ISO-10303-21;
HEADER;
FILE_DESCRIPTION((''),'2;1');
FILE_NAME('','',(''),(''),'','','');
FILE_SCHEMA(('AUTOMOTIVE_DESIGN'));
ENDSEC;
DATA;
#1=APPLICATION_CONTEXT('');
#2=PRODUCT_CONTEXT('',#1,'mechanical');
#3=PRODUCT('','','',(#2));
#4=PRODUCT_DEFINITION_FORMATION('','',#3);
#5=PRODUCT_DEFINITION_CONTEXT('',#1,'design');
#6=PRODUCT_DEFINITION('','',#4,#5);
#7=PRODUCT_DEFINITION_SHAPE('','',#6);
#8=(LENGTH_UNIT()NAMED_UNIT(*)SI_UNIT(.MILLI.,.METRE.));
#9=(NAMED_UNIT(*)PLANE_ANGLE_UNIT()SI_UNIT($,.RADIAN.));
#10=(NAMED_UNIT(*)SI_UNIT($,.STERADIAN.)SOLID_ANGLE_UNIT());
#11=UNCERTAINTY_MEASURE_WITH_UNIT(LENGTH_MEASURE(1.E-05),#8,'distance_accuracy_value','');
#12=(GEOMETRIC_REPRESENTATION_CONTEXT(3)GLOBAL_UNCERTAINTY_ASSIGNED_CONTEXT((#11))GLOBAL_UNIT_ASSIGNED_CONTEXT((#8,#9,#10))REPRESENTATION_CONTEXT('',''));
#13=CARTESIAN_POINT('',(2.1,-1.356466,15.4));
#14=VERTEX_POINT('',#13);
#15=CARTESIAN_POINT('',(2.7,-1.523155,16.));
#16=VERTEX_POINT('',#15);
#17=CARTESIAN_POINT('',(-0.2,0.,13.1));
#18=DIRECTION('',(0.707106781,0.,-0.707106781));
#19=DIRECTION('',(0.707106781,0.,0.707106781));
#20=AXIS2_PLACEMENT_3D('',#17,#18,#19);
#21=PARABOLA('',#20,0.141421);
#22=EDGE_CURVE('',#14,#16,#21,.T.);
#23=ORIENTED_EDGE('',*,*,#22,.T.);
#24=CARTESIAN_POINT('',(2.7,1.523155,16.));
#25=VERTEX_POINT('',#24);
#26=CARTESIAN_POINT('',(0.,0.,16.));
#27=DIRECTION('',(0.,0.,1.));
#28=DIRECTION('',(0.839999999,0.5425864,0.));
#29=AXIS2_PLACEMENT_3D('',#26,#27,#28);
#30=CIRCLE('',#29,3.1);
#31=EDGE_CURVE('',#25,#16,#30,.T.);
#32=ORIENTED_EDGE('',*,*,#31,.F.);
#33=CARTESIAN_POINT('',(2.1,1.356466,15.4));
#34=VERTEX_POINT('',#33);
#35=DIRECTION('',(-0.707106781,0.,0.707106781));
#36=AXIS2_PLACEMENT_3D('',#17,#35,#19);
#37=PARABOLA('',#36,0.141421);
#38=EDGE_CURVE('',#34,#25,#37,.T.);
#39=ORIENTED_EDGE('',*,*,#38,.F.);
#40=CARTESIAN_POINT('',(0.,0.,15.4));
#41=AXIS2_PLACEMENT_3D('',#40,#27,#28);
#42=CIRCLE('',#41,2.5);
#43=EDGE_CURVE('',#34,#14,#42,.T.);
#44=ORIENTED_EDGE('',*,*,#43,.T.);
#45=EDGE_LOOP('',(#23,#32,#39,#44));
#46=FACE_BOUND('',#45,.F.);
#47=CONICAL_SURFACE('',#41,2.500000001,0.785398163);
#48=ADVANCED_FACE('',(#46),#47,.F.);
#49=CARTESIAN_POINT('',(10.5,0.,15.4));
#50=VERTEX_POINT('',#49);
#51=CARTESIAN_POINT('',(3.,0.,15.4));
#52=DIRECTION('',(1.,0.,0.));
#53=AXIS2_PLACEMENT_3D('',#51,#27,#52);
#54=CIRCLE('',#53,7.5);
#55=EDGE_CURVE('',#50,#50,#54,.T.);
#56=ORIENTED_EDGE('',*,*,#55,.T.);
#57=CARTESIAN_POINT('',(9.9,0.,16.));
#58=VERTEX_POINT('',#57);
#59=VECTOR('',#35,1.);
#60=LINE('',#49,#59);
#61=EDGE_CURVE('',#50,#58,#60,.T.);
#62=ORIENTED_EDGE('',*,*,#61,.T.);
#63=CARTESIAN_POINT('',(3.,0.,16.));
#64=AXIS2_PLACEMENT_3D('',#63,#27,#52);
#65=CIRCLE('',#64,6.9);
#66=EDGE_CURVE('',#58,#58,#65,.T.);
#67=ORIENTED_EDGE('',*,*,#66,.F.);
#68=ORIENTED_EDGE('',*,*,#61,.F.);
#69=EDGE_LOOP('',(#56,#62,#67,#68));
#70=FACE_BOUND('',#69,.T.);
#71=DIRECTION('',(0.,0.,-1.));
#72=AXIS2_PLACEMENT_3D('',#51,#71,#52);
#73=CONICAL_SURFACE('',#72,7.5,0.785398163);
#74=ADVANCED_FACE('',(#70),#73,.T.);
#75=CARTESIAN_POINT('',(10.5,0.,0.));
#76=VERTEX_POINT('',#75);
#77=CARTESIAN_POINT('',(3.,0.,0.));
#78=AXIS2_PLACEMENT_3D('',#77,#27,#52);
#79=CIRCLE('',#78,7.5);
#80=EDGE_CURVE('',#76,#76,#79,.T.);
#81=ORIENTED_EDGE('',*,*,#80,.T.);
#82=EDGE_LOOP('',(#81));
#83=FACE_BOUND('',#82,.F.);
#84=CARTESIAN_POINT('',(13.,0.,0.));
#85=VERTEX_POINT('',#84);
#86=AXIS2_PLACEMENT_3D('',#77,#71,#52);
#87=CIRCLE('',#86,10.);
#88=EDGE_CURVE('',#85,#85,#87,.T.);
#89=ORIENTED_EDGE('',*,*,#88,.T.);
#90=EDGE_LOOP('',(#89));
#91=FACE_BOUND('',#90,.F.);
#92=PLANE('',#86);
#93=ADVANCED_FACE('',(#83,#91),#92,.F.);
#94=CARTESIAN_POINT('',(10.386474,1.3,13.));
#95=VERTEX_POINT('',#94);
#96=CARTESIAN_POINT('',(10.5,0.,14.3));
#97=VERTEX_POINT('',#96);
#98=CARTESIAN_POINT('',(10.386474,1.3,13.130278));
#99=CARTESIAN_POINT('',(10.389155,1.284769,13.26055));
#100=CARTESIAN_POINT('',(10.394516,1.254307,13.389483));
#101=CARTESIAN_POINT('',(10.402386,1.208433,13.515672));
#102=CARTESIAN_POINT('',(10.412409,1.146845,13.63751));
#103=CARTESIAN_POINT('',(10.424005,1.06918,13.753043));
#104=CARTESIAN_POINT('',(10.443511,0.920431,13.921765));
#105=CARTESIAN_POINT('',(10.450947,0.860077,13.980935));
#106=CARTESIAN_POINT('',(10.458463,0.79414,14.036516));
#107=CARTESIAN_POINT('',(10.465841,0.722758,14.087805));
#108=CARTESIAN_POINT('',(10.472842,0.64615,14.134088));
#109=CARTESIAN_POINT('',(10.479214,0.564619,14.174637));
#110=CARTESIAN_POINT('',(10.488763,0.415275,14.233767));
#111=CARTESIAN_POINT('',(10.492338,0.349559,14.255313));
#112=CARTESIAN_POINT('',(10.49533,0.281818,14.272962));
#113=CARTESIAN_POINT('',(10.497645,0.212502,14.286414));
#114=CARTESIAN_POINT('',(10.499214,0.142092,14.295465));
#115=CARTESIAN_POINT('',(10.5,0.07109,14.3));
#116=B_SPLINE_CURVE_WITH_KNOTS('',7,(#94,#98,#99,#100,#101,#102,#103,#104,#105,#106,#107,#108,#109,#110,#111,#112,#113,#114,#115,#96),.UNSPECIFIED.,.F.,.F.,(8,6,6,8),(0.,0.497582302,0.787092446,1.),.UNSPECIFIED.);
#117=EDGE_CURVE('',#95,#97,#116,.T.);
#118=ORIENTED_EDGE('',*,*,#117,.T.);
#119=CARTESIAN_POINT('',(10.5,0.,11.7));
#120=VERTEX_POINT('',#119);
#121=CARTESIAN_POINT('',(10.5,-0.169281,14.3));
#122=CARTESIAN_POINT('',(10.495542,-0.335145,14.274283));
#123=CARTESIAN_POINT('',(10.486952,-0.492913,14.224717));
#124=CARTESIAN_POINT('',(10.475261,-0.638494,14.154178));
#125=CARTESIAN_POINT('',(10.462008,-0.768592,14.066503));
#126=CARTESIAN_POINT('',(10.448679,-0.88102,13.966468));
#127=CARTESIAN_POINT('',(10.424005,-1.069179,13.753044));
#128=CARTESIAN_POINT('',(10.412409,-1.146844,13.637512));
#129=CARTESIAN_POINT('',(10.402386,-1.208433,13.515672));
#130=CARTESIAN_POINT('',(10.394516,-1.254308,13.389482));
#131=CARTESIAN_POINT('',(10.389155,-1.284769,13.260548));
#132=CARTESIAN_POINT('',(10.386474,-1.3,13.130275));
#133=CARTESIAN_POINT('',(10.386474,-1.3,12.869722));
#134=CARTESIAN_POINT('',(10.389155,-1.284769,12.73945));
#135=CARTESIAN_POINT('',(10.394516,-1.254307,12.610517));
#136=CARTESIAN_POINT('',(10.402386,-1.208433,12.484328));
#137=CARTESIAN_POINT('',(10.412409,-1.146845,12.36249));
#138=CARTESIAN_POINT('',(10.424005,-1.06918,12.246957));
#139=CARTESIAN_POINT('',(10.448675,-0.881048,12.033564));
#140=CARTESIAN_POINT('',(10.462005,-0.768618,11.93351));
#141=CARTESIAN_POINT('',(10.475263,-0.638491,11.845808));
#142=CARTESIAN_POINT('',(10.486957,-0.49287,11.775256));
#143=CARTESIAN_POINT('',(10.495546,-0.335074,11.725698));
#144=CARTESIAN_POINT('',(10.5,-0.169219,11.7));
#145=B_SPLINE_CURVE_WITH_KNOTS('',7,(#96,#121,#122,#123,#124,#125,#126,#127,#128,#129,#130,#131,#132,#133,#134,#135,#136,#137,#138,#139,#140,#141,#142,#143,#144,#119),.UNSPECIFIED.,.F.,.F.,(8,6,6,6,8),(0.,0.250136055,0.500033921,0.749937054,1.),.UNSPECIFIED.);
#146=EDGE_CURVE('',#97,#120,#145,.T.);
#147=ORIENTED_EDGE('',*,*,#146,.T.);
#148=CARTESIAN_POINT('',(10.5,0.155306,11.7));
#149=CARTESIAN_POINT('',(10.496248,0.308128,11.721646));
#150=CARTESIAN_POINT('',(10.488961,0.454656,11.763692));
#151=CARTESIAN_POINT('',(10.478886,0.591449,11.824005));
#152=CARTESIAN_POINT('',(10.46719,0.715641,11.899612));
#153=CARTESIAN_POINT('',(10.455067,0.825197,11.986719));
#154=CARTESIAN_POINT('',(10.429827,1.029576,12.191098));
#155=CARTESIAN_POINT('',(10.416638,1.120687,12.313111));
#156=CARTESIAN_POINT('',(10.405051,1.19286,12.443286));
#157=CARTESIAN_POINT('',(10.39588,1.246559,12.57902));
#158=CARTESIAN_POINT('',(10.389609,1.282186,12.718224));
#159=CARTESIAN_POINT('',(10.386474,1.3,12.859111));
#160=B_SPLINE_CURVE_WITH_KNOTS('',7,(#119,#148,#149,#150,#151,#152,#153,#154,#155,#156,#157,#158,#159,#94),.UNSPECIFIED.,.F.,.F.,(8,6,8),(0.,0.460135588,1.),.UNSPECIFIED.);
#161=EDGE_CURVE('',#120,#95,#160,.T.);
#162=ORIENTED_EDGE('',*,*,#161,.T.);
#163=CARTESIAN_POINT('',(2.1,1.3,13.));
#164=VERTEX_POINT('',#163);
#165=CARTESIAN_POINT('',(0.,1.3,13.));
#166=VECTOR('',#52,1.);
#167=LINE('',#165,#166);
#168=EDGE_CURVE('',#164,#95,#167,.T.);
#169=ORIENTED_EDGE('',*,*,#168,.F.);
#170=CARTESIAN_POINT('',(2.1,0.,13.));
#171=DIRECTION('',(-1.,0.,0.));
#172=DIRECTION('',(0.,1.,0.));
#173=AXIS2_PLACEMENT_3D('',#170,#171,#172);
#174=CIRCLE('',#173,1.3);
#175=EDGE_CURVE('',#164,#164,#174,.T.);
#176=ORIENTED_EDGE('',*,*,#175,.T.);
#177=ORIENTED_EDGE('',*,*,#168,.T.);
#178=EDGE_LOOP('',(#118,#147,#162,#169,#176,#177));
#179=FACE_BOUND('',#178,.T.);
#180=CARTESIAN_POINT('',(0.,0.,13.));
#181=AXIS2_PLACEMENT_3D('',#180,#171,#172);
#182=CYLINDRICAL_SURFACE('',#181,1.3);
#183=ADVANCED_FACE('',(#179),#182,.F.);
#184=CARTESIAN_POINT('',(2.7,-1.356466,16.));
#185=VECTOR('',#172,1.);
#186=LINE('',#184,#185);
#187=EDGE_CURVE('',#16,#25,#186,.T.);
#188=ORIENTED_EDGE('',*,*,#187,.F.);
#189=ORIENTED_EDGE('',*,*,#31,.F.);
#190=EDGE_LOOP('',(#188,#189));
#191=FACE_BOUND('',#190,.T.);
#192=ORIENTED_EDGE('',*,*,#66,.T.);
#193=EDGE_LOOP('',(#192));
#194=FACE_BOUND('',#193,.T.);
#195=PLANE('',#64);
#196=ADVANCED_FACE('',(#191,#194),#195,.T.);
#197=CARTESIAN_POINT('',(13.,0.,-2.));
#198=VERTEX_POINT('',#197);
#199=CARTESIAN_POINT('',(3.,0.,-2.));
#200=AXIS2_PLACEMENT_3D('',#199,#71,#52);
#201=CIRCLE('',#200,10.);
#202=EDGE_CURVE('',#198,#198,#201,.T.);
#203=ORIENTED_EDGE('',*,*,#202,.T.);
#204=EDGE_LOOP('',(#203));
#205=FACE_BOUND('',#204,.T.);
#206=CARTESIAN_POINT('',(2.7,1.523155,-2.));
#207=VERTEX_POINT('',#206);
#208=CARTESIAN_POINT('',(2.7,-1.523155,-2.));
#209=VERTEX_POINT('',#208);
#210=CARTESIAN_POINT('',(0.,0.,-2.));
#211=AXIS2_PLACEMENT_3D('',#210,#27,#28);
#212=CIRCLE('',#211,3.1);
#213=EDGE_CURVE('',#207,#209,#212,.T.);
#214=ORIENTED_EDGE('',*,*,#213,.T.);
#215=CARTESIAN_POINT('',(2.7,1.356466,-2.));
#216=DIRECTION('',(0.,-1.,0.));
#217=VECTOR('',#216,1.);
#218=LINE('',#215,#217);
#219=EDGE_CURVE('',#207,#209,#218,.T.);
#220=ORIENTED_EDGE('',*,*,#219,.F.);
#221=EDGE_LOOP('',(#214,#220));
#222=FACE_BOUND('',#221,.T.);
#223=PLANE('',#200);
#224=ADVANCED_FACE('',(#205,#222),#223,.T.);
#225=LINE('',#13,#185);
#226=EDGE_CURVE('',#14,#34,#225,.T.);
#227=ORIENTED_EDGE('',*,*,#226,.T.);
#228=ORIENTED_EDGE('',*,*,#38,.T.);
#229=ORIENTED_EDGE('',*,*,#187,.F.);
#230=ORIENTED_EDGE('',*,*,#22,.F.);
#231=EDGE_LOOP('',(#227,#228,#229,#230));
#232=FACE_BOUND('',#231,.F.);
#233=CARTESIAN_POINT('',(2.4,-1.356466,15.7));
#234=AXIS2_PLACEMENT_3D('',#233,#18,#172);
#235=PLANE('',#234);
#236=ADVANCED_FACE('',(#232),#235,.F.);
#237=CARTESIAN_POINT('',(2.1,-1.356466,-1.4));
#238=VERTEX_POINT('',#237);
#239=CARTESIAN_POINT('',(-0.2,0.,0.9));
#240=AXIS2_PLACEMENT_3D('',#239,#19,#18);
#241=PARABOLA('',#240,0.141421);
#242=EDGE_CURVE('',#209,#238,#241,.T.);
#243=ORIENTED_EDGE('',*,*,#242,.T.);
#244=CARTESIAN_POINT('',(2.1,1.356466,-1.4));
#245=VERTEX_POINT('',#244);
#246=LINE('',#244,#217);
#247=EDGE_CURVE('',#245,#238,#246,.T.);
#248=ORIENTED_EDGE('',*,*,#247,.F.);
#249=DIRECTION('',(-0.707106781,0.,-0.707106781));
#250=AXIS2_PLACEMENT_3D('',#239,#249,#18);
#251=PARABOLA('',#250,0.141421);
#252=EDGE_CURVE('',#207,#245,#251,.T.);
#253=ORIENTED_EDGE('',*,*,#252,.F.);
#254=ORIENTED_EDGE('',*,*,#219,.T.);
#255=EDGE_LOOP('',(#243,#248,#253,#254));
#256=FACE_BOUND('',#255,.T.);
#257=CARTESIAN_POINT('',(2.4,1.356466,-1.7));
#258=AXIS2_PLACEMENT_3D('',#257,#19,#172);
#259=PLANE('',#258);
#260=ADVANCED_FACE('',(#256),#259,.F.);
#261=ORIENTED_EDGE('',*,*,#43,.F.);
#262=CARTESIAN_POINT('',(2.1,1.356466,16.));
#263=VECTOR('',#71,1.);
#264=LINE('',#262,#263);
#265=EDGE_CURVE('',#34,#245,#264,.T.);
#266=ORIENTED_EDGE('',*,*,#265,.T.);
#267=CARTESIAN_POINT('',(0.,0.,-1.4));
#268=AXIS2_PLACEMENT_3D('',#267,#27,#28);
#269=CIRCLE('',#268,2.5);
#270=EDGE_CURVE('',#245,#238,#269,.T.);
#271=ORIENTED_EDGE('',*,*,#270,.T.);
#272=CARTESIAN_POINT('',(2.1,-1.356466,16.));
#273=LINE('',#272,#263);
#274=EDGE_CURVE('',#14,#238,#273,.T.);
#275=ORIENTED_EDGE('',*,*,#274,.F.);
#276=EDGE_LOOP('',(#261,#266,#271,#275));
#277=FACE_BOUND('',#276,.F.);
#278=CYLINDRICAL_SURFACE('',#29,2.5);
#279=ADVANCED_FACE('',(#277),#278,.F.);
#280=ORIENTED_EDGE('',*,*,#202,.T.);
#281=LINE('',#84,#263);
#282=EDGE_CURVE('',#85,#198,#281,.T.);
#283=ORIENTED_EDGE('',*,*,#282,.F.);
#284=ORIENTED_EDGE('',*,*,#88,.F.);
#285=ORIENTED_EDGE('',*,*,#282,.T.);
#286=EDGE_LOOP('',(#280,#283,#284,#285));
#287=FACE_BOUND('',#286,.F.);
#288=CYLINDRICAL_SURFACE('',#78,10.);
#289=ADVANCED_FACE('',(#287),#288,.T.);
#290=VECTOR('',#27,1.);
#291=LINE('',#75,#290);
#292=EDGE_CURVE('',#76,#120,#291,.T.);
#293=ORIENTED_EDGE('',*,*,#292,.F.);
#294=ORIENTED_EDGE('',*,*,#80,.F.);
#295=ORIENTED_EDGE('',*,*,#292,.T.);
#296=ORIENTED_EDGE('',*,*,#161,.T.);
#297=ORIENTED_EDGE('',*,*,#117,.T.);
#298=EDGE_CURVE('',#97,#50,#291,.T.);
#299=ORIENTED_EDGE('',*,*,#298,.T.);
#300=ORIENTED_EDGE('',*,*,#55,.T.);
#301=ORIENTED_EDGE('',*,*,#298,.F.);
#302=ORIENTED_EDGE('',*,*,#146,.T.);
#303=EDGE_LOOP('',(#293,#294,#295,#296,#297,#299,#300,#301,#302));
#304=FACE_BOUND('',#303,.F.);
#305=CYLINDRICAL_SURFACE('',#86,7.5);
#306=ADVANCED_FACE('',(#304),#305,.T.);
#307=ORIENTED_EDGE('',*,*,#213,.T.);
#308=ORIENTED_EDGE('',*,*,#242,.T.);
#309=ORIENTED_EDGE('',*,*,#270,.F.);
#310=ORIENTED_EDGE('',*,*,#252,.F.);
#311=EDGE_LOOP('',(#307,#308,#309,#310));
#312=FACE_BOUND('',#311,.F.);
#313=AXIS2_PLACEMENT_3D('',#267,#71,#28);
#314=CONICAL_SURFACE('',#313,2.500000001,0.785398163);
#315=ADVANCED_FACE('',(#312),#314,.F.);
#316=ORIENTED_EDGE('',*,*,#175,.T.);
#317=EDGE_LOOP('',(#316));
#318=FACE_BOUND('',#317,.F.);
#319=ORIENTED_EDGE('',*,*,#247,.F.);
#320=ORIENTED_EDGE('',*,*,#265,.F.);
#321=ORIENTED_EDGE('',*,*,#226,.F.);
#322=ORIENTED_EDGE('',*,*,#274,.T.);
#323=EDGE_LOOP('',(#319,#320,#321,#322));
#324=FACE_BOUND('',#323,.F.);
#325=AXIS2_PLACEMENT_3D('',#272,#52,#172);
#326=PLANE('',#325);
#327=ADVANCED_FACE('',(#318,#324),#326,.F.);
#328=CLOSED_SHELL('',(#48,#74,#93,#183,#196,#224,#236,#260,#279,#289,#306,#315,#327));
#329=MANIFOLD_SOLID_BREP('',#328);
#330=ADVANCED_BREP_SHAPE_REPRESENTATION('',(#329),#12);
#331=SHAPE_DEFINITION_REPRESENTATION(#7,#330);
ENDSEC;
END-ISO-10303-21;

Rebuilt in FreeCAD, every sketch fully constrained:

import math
import FreeCAD as App
import Part
import Sketcher


def edges_at(feature, points):
    """Names of the edges that pass closest to the given points."""
    edges = feature.Shape.Edges
    near = lambda p: min(range(len(edges)), key=lambda i: edges[i].distToShape(Part.Vertex(*p))[0])
    return sorted({f"Edge{near(p) + 1}" for p in points})

doc = App.newDocument("Part")
body = doc.addObject("PartDesign::Body", "Body")

# Sketch on XY plane
sketch1 = body.newObject("Sketcher::SketchObject", "Sketch")
sketch1.AttachmentSupport = (doc.getObject("XY_Plane"), [""])
sketch1.MapMode = "FlatFace"
sketch1.addGeometry(Part.Circle(App.Vector(3, 0, 0), App.Vector(0, 0, 1), 8), False)
sketch1.addConstraint(Sketcher.Constraint("PointOnObject", 0, 3, -1))
sketch1.addConstraint(Sketcher.Constraint("Diameter", 0, 15.0))
sketch1.addConstraint(Sketcher.Constraint("DistanceX", -1, 1, 0, 3, 3.0))
pad1 = body.newObject("PartDesign::Pad", "Pad")
pad1.Profile = sketch1
pad1.Length = 16

# Sketch on XY plane
sketch2 = body.newObject("Sketcher::SketchObject", "Sketch001")
sketch2.AttachmentSupport = (doc.getObject("XY_Plane"), [""])
sketch2.MapMode = "FlatFace"
sketch2.addGeometry(Part.Circle(App.Vector(3, 0, 0), App.Vector(0, 0, 1), 10), False)
sketch2.addConstraint(Sketcher.Constraint("PointOnObject", 0, 3, -1))
sketch2.addConstraint(Sketcher.Constraint("Diameter", 0, 20.0))
sketch2.addConstraint(Sketcher.Constraint("DistanceX", -1, 1, 0, 3, 3.0))
pad2 = body.newObject("PartDesign::Pad", "Pad001")
pad2.Profile = sketch2
pad2.Length = 2
pad2.Reversed = True

# Sketch on YZ plane
sketch3 = body.newObject("Sketcher::SketchObject", "Sketch002")
sketch3.AttachmentSupport = (doc.getObject("YZ_Plane"), [""])
sketch3.MapMode = "FlatFace"
sketch3.addGeometry(Part.Circle(App.Vector(0, 13, 0), App.Vector(0, 0, 1), 1.3), False)
sketch3.addConstraint(Sketcher.Constraint("PointOnObject", 0, 3, -2))
sketch3.addConstraint(Sketcher.Constraint("Diameter", 0, 2.6))
sketch3.addConstraint(Sketcher.Constraint("DistanceY", -1, 1, 0, 3, 13.0))
pocket1 = body.newObject("PartDesign::Pocket", "Pocket")
pocket1.Profile = sketch3
pocket1.Type = "ThroughAll"
pocket1.Reversed = True

# Sketch on XY plane
sketch4 = body.newObject("Sketcher::SketchObject", "Sketch003")
sketch4.AttachmentSupport = (doc.getObject("XY_Plane"), [""])
sketch4.MapMode = "FlatFace"
sketch4.AttachmentOffset = App.Placement(App.Vector(0, 0, 16), App.Rotation())
sketch4.addGeometry(Part.ArcOfCircle(Part.Circle(App.Vector(0, 0, 0), App.Vector(0, 0, 1), 2.5), math.radians(33), math.radians(327)), False)
sketch4.addGeometry(Part.LineSegment(App.Vector(2.1, -1.4, 0), App.Vector(2.1, 1.4, 0)), False)
sketch4.addConstraint(Sketcher.Constraint("Coincident", 0, 1, 1, 2))
sketch4.addConstraint(Sketcher.Constraint("Coincident", 1, 1, 0, 2))
sketch4.addConstraint(Sketcher.Constraint("Vertical", 1))
sketch4.addConstraint(Sketcher.Constraint("Coincident", 0, 3, -1, 1))
sketch4.addConstraint(Sketcher.Constraint("Radius", 0, 2.5))
sketch4.addConstraint(Sketcher.Constraint("DistanceX", -1, 1, 0, 1, 2.1))
pocket2 = body.newObject("PartDesign::Pocket", "Pocket001")
pocket2.Profile = sketch4
pocket2.Type = "ThroughAll"
doc.recompute()

chamfer = body.newObject("PartDesign::Chamfer", "Chamfer")
chamfer.Base = (pocket2, edges_at(pocket2, [
    (-4.5, 0, 16),
    (2.1, 0, 16),
    (-2.5, 0, 16),
    (-2.5, 0, -2),
    (2.1, 0, -2),
]))
chamfer.Size = 0.6

doc.recompute()
